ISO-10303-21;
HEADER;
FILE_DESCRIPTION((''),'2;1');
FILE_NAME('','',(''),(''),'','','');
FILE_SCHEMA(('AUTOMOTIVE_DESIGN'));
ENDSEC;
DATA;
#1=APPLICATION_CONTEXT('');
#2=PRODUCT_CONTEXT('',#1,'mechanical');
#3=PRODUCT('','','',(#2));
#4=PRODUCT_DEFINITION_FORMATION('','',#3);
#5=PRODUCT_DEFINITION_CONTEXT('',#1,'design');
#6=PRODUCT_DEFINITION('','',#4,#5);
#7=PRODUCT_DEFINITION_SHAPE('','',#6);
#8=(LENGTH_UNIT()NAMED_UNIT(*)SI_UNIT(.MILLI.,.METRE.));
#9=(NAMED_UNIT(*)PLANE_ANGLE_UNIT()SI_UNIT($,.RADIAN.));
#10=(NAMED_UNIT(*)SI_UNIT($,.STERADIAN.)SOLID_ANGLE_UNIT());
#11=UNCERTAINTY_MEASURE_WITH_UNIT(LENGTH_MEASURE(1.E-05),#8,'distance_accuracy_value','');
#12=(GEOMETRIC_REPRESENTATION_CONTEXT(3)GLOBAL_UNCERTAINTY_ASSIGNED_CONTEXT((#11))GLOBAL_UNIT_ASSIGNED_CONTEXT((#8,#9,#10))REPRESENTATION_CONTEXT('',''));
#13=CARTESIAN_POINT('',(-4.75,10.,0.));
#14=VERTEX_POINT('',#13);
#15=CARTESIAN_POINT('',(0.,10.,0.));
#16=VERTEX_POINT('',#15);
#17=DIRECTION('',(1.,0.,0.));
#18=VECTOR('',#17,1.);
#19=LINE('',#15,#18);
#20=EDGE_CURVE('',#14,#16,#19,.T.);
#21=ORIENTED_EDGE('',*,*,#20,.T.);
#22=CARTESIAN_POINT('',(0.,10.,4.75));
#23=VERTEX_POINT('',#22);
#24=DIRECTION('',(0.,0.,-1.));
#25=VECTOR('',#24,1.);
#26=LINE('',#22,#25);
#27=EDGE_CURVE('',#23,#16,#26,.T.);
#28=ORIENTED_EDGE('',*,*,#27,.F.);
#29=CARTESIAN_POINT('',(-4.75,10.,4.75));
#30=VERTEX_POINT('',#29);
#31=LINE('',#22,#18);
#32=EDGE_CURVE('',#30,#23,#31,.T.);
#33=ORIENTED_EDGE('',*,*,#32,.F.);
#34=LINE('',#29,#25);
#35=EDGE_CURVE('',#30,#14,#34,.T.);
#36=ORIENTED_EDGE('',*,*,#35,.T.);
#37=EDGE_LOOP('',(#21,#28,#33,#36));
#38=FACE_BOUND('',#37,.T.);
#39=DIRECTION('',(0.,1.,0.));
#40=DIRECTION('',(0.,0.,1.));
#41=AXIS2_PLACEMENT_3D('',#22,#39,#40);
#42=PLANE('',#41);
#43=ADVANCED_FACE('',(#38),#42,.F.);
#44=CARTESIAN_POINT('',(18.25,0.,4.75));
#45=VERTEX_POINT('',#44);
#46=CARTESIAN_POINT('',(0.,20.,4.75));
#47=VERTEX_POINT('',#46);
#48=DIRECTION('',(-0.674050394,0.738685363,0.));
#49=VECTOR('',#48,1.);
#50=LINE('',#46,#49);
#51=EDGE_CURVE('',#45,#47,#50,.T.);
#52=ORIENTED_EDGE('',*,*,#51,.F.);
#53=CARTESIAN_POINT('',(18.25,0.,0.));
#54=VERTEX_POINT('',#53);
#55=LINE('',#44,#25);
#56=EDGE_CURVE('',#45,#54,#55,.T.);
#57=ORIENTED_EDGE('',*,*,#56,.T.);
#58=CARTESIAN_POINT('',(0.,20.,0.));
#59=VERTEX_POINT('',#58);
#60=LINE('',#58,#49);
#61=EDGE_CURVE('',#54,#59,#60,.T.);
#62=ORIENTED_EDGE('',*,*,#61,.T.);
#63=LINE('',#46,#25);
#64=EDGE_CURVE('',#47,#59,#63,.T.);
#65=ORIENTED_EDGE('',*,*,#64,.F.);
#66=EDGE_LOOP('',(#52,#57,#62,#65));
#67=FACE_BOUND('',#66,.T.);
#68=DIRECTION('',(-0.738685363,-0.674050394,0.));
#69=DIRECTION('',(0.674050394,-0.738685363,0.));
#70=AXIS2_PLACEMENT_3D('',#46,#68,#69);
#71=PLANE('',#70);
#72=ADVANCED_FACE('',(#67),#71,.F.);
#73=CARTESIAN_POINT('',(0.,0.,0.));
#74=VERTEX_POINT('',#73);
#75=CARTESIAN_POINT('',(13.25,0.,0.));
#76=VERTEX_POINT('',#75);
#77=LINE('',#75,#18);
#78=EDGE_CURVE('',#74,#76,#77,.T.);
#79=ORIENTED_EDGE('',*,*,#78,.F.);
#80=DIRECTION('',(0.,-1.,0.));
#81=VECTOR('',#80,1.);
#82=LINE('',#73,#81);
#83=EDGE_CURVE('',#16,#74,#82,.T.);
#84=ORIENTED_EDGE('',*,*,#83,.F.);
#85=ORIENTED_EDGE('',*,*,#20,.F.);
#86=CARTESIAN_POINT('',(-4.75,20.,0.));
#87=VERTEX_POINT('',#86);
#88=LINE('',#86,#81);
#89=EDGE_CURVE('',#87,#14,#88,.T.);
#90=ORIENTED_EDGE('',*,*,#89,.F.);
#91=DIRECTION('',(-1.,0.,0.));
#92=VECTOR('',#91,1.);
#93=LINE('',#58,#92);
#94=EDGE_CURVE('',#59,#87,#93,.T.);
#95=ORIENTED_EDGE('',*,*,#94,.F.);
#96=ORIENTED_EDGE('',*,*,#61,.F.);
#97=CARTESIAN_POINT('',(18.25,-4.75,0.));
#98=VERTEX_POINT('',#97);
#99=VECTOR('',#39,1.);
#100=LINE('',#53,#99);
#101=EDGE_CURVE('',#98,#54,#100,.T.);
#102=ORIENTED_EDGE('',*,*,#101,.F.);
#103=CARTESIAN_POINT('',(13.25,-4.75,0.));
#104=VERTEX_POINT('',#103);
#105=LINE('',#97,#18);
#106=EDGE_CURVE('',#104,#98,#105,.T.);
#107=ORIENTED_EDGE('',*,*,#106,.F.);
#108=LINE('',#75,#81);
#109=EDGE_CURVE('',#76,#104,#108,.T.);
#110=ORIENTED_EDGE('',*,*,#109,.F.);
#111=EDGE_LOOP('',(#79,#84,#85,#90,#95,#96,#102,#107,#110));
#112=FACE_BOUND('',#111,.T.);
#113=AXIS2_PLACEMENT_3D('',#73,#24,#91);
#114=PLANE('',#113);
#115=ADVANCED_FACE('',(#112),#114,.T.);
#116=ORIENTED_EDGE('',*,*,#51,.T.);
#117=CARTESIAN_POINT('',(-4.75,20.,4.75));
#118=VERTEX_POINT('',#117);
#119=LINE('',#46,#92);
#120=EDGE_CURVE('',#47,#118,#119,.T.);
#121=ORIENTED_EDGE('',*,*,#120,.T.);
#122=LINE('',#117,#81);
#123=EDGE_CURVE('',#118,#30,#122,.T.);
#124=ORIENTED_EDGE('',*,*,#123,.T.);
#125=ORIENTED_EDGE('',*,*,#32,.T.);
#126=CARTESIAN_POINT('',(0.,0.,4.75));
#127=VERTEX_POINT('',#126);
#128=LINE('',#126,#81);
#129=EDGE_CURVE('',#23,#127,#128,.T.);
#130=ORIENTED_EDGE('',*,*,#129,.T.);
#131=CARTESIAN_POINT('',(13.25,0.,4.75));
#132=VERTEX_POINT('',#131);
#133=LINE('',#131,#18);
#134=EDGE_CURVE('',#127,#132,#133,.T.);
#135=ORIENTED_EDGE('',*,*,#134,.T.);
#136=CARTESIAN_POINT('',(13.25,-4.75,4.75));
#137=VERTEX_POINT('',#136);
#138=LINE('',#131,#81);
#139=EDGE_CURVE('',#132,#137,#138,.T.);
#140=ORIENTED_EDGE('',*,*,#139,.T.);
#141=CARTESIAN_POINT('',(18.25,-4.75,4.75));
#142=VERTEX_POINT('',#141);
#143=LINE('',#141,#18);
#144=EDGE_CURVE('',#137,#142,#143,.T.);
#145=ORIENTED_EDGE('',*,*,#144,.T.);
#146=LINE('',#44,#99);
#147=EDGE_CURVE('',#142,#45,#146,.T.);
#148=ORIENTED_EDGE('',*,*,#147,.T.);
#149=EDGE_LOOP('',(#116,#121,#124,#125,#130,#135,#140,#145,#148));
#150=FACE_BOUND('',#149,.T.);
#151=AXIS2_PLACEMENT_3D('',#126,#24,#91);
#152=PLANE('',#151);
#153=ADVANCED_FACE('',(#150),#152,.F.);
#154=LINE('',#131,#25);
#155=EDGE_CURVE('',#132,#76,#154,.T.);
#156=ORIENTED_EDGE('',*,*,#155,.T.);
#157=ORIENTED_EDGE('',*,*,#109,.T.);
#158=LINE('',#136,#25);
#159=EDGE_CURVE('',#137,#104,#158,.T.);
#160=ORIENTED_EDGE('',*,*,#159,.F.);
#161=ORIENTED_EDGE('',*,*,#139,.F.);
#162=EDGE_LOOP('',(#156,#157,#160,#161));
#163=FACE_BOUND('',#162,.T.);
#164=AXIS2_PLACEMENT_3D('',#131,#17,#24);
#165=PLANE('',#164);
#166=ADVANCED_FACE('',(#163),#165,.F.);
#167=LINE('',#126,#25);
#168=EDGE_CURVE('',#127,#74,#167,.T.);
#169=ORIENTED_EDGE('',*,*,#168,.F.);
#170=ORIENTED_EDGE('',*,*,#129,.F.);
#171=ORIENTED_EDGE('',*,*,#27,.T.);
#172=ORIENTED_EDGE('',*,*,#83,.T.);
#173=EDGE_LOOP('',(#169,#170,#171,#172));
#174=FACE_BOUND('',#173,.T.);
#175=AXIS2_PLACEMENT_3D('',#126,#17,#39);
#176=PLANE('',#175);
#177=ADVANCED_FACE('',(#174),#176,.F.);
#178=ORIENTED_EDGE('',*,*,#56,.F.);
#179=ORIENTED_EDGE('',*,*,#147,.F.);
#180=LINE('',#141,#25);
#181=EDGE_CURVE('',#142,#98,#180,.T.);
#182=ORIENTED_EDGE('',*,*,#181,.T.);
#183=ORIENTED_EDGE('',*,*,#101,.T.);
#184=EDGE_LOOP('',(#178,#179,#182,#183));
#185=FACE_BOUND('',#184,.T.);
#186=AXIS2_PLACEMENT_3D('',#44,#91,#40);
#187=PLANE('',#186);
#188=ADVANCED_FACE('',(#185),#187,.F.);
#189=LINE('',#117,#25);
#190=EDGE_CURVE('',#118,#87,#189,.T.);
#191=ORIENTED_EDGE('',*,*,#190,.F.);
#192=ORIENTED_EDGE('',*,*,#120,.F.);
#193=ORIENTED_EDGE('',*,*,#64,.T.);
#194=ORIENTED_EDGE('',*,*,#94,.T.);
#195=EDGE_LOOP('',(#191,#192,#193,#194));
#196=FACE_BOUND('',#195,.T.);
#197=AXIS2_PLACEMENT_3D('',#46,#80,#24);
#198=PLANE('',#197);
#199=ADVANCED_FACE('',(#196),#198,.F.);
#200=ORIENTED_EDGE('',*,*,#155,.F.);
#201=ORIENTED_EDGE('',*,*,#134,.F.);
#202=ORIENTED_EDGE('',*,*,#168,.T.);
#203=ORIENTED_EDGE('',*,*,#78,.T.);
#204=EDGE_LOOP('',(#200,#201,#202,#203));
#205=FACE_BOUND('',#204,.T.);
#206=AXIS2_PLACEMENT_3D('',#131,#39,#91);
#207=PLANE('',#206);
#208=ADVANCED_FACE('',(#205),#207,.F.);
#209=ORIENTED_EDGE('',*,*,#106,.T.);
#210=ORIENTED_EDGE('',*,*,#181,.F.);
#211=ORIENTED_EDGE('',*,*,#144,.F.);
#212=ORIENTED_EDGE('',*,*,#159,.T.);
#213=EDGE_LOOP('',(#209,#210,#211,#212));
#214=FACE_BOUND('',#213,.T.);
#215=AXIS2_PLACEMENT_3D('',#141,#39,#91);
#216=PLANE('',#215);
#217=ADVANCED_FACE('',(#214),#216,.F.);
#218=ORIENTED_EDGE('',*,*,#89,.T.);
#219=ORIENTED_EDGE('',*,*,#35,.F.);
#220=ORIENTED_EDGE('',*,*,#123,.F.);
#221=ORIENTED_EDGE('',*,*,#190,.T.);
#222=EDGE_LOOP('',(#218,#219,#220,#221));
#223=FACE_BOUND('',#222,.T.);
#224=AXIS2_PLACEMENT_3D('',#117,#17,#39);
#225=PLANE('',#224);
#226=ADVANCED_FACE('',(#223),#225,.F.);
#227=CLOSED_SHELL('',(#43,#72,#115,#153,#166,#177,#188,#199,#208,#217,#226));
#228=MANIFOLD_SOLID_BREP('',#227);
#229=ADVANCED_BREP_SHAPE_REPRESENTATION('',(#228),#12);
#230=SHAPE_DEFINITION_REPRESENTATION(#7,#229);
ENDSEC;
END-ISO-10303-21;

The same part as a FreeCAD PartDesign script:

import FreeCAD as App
import Part
import Sketcher

doc = App.newDocument("Part")
params = doc.addObject("Spreadsheet::Sheet", "Params")
for row, (alias, value) in enumerate([
    ("sketch1_width", "5 mm"),
    ("sketch1_height", "10 mm"),
    ("sketch1_width2", "13.25 mm"),
    ("pad1_length", "4.75 mm"),
], start=1):
    params.set(f"A{row}", alias)
    params.set(f"B{row}", "=" + value)
    params.setAlias(f"B{row}", alias)

body = doc.addObject("PartDesign::Body", "Body")

# Sketch on XY plane
sketch1 = body.newObject("Sketcher::SketchObject", "Sketch")
sketch1.AttachmentSupport = (doc.getObject("XY_Plane"), [""])
sketch1.MapMode = "FlatFace"
sketch1.addGeometry([
    Part.LineSegment(App.Vector(0, 10, 0), App.Vector(0, 0, 0)),  # 0
    Part.LineSegment(App.Vector(0, 0, 0), App.Vector(13.25, 0, 0)),  # 1
    Part.LineSegment(App.Vector(13.25, 0, 0), App.Vector(13.25, -4.75, 0)),  # 2
    Part.LineSegment(App.Vector(13.25, -4.75, 0), App.Vector(18.25, -4.75, 0)),  # 3
    Part.LineSegment(App.Vector(18.25, -4.75, 0), App.Vector(18.25, 0, 0)),  # 4
    Part.LineSegment(App.Vector(18.25, 0, 0), App.Vector(0, 20, 0)),  # 5
    Part.LineSegment(App.Vector(0, 20, 0), App.Vector(-4.75, 20, 0)),  # 6
    Part.LineSegment(App.Vector(-4.75, 20, 0), App.Vector(-4.75, 10, 0)),  # 7
    Part.LineSegment(App.Vector(-4.75, 10, 0), App.Vector(0, 10, 0)),  # 8
], False)
sketch1.addConstraint([
    Sketcher.Constraint("Coincident", 0, 2, 1, 1),
    Sketcher.Constraint("Coincident", 1, 2, 2, 1),
    Sketcher.Constraint("Coincident", 2, 2, 3, 1),
    Sketcher.Constraint("Coincident", 3, 2, 4, 1),
    Sketcher.Constraint("Coincident", 4, 2, 5, 1),
    Sketcher.Constraint("Coincident", 5, 2, 6, 1),
    Sketcher.Constraint("Coincident", 6, 2, 7, 1),
    Sketcher.Constraint("Coincident", 7, 2, 8, 1),
    Sketcher.Constraint("Coincident", 8, 2, 0, 1),
    Sketcher.Constraint("Vertical", 0),
    Sketcher.Constraint("Horizontal", 1),
    Sketcher.Constraint("Vertical", 2),
    Sketcher.Constraint("Horizontal", 3),
    Sketcher.Constraint("Vertical", 4),
    Sketcher.Constraint("Horizontal", 6),
    Sketcher.Constraint("Vertical", 7),
    Sketcher.Constraint("Horizontal", 8),
    Sketcher.Constraint("Coincident", 0, 2, -1, 1),
    Sketcher.Constraint("PointOnObject", 4, 2, -1),
    Sketcher.Constraint("PointOnObject", 5, 2, -2),
    Sketcher.Constraint("Equal", 8, 2),
    Sketcher.Constraint("Equal", 0, 7),
    Sketcher.Constraint("DistanceX", 3, 1, 3, 2, 5.0),
    Sketcher.Constraint("DistanceY", 0, 2, 0, 1, 10.0),
    Sketcher.Constraint("DistanceX", 6, 2, 1, 2, 18.0),
    Sketcher.Constraint("DistanceX", 1, 1, 1, 2, 13.25),
])
sketch1.setExpression("Constraints[22]", "Params.sketch1_width")
sketch1.setExpression("Constraints[23]", "Params.sketch1_height")
sketch1.setExpression("Constraints[25]", "Params.sketch1_width2")
pad1 = body.newObject("PartDesign::Pad", "Pad")
pad1.Profile = sketch1
pad1.setExpression("Length", "Params.pad1_length")

doc.recompute()
